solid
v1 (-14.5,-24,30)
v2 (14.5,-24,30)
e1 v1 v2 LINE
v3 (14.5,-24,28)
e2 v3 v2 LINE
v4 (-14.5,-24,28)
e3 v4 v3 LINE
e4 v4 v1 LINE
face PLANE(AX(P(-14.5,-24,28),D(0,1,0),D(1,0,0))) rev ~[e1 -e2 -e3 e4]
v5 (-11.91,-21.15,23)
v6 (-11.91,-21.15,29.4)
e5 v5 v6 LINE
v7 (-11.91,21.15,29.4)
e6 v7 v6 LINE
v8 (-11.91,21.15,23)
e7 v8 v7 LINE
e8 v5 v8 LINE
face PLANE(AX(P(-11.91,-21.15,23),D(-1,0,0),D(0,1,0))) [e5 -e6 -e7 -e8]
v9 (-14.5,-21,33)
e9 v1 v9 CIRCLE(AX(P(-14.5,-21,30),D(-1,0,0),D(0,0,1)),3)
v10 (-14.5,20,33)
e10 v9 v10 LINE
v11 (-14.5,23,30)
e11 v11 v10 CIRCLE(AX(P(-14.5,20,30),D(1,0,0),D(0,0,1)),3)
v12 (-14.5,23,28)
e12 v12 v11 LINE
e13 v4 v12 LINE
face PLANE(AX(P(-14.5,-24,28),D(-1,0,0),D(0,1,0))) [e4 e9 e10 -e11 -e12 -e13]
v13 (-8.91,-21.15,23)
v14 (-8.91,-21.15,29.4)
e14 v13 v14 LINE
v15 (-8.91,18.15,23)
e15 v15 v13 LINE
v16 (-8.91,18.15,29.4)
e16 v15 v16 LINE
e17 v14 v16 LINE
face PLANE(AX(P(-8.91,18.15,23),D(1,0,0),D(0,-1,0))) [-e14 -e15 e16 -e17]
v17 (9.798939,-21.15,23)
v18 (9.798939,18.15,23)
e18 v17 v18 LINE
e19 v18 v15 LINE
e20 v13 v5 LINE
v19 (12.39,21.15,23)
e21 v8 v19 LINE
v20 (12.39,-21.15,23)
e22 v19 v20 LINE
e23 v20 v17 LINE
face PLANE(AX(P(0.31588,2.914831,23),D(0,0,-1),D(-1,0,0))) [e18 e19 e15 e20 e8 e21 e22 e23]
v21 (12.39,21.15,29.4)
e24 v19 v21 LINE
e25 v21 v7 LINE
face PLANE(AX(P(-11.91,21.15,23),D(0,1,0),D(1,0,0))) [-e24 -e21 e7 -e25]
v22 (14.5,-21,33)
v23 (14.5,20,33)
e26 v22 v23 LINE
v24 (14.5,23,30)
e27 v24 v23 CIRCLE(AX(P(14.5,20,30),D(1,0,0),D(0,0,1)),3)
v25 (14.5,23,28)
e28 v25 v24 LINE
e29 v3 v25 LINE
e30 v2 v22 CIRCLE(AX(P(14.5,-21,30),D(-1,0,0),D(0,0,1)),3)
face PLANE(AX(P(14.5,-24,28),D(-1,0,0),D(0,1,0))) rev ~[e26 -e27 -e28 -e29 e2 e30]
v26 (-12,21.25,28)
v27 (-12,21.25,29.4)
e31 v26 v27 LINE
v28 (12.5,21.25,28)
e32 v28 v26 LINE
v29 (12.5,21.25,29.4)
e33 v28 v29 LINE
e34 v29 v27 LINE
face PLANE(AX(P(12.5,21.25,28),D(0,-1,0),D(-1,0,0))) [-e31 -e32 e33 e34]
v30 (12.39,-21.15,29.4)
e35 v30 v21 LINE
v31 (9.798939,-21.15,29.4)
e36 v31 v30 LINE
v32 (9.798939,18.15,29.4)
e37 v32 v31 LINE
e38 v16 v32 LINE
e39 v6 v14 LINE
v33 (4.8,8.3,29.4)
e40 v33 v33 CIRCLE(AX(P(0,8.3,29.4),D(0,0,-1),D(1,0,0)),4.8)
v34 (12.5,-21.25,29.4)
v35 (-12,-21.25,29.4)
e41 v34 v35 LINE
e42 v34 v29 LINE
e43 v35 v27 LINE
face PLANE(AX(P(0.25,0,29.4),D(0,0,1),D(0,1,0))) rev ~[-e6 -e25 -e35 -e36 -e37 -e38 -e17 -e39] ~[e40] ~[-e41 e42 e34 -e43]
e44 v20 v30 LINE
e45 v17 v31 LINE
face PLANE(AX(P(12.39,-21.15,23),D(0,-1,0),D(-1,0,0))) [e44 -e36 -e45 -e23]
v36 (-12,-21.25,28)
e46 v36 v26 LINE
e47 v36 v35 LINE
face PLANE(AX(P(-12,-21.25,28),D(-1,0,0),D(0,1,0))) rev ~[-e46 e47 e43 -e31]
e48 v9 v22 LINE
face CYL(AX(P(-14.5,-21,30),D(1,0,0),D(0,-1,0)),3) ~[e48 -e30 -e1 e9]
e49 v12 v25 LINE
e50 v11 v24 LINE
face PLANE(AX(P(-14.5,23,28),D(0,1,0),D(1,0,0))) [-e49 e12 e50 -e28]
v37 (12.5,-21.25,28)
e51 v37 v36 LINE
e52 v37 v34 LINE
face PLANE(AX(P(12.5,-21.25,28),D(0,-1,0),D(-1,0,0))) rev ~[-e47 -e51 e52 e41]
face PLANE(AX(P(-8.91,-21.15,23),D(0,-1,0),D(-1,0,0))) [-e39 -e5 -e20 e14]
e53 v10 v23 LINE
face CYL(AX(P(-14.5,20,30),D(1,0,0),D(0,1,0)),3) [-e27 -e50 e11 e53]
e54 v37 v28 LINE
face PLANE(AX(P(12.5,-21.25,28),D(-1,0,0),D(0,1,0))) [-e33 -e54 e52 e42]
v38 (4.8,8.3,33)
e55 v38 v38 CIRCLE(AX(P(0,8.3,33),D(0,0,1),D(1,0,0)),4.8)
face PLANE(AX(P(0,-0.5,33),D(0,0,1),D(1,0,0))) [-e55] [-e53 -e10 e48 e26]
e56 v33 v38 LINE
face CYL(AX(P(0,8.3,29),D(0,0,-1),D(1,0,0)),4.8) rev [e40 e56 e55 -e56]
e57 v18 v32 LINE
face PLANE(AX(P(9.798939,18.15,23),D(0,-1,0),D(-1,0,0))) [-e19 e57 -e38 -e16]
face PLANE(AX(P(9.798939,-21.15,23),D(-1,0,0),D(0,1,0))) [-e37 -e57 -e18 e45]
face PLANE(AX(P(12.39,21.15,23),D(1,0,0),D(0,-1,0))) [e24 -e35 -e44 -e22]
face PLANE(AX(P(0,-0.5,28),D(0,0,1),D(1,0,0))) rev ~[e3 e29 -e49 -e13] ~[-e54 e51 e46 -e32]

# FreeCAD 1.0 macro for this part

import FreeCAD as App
import Part
import Sketcher
Q = App.Units.Quantity


def edges_at(feature, points):
    """Names of the edges that pass closest to the given points."""
    edges = feature.Shape.Edges
    near = lambda p: min(range(len(edges)), key=lambda i: edges[i].distToShape(Part.Vertex(*p))[0])
    return sorted({f"Edge{near(p) + 1}" for p in points})


def add_polygon(sketch, points):
    """Adds a closed chain of lines whose ends are joined by coincident constraints."""
    first, n = sketch.GeometryCount, len(points)
    for a, b in zip(points, points[1:] + points[:1]):
        sketch.addGeometry(Part.LineSegment(App.Vector(*a, 0), App.Vector(*b, 0)), False)
    for i in range(n):
        sketch.addConstraint(Sketcher.Constraint("Coincident", first + i, 2, first + (i + 1) % n, 1))

doc = App.newDocument("Part")
params = doc.addObject("Spreadsheet::Sheet", "Params")
for row, (alias, value) in enumerate([
    ("sketch1_width", "3 mm"),
    ("sketch1_width2", "24.3 mm"),
    ("sketch1_height", "42.3 mm"),
    ("sketch1_height2", "39.3 mm"),
    ("pad1_length", "7 mm"),
    ("sketch2_diameter", "9.6 mm"),
    ("pad2_length", "4 mm"),
    ("sketch3_width", "24.5 mm"),
    ("sketch3_height", "42.5 mm"),
    ("pad3_length", "1.4 mm"),
    ("sketch4_width", "29 mm"),
    ("sketch4_height", "47 mm"),
    ("pad4_length", "5 mm"),
    ("fillet_radius", "3 mm"),
], start=1):
    params.set(f"A{row}", alias)
    params.set(f"B{row}", "=" + value)
    params.setAlias(f"B{row}", alias)

body = doc.addObject("PartDesign::Body", "Body")

sketch1 = body.newObject("Sketcher::SketchObject", "Sketch")
sketch1.AttachmentSupport = (doc.getObject("XY_Plane"), [""])
sketch1.MapMode = "FlatFace"
add_polygon(sketch1, [(-12.2, 21.1), (-12.2, -21.1), (-9.2, -21.1), (-9.2, 18.1), (9.6, 18.1), (9.6, -21.1), (12.2, -21.1), (12.2, 21.1)])
sketch1.addConstraint([
    Sketcher.Constraint("Vertical", 0),
    Sketcher.Constraint("Horizontal", 1),
    Sketcher.Constraint("Vertical", 2),
    Sketcher.Constraint("Horizontal", 3),
    Sketcher.Constraint("Vertical", 4),
    Sketcher.Constraint("Horizontal", 5),
    Sketcher.Constraint("Vertical", 6),
    Sketcher.Constraint("Horizontal", 7),
    Sketcher.Constraint("Symmetric", 0, 2, 6, 2, -1, 1),
    Sketcher.Constraint("Horizontal", 1, 2, 4, 2),
    Sketcher.Constraint("DistanceX", 1, 1, 1, 2, Q("3 mm")),
    Sketcher.Constraint("DistanceX", 7, 2, 7, 1, Q("24.3 mm")),
    Sketcher.Constraint("DistanceY", 0, 2, 0, 1, Q("42.3 mm")),
    Sketcher.Constraint("DistanceY", 2, 1, 2, 2, Q("39.3 mm")),
    Sketcher.Constraint("DistanceX", 3, 1, 3, 2, Q("18.708939 mm")),
])
sketch1.setExpression("Constraints[18]", "Params.sketch1_width")
sketch1.setExpression("Constraints[19]", "Params.sketch1_width2")
sketch1.setExpression("Constraints[20]", "Params.sketch1_height")
sketch1.setExpression("Constraints[21]", "Params.sketch1_height2")
pad1 = body.newObject("PartDesign::Pad", "Pad")
pad1.Profile = sketch1
pad1.setExpression("Length", "Params.pad1_length")
body2 = doc.addObject("PartDesign::Body", "Body001")
doc.recompute()

body.Placement = App.Placement(App.Vector(0.24, 0, 23), App.Rotation(App.Vector(0, 0, 1), 0))
boolean = body2.newObject("PartDesign::Boolean", "Boolean")
boolean.Type = "Fuse"
boolean.addObjects([body])
body3 = doc.addObject("PartDesign::Body", "Body002")

sketch2 = body3.newObject("Sketcher::SketchObject", "Sketch001")
sketch2.AttachmentSupport = (doc.getObject("XY_Plane002"), [""])
sketch2.MapMode = "FlatFace"
sketch2.addGeometry(Part.Circle(App.Vector(0, 8.3, 0), App.Vector(0, 0, 1), 4.8), False)
sketch2.addConstraint([
    Sketcher.Constraint("PointOnObject", 0, 3, -2),
    Sketcher.Constraint("Diameter", 0, Q("9.6 mm")),
    Sketcher.Constraint("DistanceY", -1, 1, 0, 3, Q("8.3 mm")),
])
sketch2.setExpression("Constraints[1]", "Params.sketch2_diameter")
pad2 = body3.newObject("PartDesign::Pad", "Pad001")
pad2.Profile = sketch2
pad2.setExpression("Length", "Params.pad2_length")
body4 = doc.addObject("PartDesign::Body", "Body003")
doc.recompute()

body3.Placement = App.Placement(App.Vector(0, 0, 29), App.Rotation(App.Vector(0, 0, 1), 0))
boolean2 = body4.newObject("PartDesign::Boolean", "Boolean001")
boolean2.Type = "Fuse"
boolean2.addObjects([body3])
body5 = doc.addObject("PartDesign::Body", "Body004")

sketch3 = body5.newObject("Sketcher::SketchObject", "Sketch002")
sketch3.AttachmentSupport = (doc.getObject("XY_Plane004"), [""])
sketch3.MapMode = "FlatFace"
sketch3.AttachmentOffset = App.Placement(App.Vector(0, 0, 13), App.Rotation())
add_polygon(sketch3, [(-12, -21), (12, -21), (12, 21), (-12, 21)])
sketch3.addConstraint([
    Sketcher.Constraint("Horizontal", 0),
    Sketcher.Constraint("Vertical", 1),
    Sketcher.Constraint("Horizontal", 2),
    Sketcher.Constraint("Vertical", 3),
    Sketcher.Constraint("DistanceX", 0, 1, 0, 2, Q("24.5 mm")),
    Sketcher.Constraint("DistanceY", 1, 1, 1, 2, Q("42.5 mm")),
    Sketcher.Constraint("DistanceX", 2, 2, -1, 1, Q("12 mm")),
    Sketcher.Constraint("DistanceY", 0, 2, -1, 1, Q("21.25 mm")),
])
sketch3.setExpression("Constraints[8]", "Params.sketch3_width")
sketch3.setExpression("Constraints[9]", "Params.sketch3_height")
pad3 = body5.newObject("PartDesign::Pad", "Pad002")
pad3.Profile = sketch3
pad3.setExpression("Length", "Params.pad3_length")
body6 = doc.addObject("PartDesign::Body", "Body005")

sketch4 = body6.newObject("Sketcher::SketchObject", "Sketch003")
sketch4.AttachmentSupport = (doc.getObject("XY_Plane005"), [""])
sketch4.MapMode = "FlatFace"
sketch4.AttachmentOffset = App.Placement(App.Vector(0, 0, 13), App.Rotation())
add_polygon(sketch4, [(-14, 23), (-14, -24), (14, -24), (14, 23)])
sketch4.addConstraint([
    Sketcher.Constraint("Vertical", 0),
    Sketcher.Constraint("Horizontal", 1),
    Sketcher.Constraint("Vertical", 2),
    Sketcher.Constraint("Horizontal", 3),
    Sketcher.Constraint("DistanceX", 1, 1, 1, 2, Q("29 mm")),
    Sketcher.Constraint("DistanceY", 0, 2, 0, 1, Q("47 mm")),
    Sketcher.Constraint("DistanceY", 0, 2, -1, 1, Q("24 mm")),
    Sketcher.Constraint("DistanceX", 0, 2, -1, 1, Q("14.5 mm")),
])
sketch4.setExpression("Constraints[8]", "Params.sketch4_width")
sketch4.setExpression("Constraints[9]", "Params.sketch4_height")
pad4 = body6.newObject("PartDesign::Pad", "Pad003")
pad4.Profile = sketch4
pad4.setExpression("Length", "Params.pad4_length")
doc.recompute()

boolean3 = body6.newObject("PartDesign::Boolean", "Boolean002")
boolean3.Type = "Cut"
boolean3.addObjects([body5])
doc.recompute()

fillet = body6.newObject("PartDesign::Fillet", "Fillet")
fillet.Base = (boolean3, edges_at(boolean3, [(0, -24, 18), (0, 23, 18)]))
fillet.setExpression("Radius", "Params.fillet_radius")
body7 = doc.addObject("PartDesign::Body", "Body006")
doc.recompute()

body6.Placement = App.Placement(App.Vector(0, 0, 15), App.Rotation(App.Vector(0, 0, 1), 0))
boolean4 = body7.newObject("PartDesign::Boolean", "Boolean003")
boolean4.Type = "Fuse"
boolean4.addObjects([body6])
doc.recompute()

boolean5 = body7.newObject("PartDesign::Boolean", "Boolean004")
boolean5.Type = "Cut"
boolean5.addObjects([body4])
doc.recompute()

boolean6 = body7.newObject("PartDesign::Boolean", "Boolean005")
boolean6.Type = "Fuse"
boolean6.addObjects([body2])

doc.recompute()
